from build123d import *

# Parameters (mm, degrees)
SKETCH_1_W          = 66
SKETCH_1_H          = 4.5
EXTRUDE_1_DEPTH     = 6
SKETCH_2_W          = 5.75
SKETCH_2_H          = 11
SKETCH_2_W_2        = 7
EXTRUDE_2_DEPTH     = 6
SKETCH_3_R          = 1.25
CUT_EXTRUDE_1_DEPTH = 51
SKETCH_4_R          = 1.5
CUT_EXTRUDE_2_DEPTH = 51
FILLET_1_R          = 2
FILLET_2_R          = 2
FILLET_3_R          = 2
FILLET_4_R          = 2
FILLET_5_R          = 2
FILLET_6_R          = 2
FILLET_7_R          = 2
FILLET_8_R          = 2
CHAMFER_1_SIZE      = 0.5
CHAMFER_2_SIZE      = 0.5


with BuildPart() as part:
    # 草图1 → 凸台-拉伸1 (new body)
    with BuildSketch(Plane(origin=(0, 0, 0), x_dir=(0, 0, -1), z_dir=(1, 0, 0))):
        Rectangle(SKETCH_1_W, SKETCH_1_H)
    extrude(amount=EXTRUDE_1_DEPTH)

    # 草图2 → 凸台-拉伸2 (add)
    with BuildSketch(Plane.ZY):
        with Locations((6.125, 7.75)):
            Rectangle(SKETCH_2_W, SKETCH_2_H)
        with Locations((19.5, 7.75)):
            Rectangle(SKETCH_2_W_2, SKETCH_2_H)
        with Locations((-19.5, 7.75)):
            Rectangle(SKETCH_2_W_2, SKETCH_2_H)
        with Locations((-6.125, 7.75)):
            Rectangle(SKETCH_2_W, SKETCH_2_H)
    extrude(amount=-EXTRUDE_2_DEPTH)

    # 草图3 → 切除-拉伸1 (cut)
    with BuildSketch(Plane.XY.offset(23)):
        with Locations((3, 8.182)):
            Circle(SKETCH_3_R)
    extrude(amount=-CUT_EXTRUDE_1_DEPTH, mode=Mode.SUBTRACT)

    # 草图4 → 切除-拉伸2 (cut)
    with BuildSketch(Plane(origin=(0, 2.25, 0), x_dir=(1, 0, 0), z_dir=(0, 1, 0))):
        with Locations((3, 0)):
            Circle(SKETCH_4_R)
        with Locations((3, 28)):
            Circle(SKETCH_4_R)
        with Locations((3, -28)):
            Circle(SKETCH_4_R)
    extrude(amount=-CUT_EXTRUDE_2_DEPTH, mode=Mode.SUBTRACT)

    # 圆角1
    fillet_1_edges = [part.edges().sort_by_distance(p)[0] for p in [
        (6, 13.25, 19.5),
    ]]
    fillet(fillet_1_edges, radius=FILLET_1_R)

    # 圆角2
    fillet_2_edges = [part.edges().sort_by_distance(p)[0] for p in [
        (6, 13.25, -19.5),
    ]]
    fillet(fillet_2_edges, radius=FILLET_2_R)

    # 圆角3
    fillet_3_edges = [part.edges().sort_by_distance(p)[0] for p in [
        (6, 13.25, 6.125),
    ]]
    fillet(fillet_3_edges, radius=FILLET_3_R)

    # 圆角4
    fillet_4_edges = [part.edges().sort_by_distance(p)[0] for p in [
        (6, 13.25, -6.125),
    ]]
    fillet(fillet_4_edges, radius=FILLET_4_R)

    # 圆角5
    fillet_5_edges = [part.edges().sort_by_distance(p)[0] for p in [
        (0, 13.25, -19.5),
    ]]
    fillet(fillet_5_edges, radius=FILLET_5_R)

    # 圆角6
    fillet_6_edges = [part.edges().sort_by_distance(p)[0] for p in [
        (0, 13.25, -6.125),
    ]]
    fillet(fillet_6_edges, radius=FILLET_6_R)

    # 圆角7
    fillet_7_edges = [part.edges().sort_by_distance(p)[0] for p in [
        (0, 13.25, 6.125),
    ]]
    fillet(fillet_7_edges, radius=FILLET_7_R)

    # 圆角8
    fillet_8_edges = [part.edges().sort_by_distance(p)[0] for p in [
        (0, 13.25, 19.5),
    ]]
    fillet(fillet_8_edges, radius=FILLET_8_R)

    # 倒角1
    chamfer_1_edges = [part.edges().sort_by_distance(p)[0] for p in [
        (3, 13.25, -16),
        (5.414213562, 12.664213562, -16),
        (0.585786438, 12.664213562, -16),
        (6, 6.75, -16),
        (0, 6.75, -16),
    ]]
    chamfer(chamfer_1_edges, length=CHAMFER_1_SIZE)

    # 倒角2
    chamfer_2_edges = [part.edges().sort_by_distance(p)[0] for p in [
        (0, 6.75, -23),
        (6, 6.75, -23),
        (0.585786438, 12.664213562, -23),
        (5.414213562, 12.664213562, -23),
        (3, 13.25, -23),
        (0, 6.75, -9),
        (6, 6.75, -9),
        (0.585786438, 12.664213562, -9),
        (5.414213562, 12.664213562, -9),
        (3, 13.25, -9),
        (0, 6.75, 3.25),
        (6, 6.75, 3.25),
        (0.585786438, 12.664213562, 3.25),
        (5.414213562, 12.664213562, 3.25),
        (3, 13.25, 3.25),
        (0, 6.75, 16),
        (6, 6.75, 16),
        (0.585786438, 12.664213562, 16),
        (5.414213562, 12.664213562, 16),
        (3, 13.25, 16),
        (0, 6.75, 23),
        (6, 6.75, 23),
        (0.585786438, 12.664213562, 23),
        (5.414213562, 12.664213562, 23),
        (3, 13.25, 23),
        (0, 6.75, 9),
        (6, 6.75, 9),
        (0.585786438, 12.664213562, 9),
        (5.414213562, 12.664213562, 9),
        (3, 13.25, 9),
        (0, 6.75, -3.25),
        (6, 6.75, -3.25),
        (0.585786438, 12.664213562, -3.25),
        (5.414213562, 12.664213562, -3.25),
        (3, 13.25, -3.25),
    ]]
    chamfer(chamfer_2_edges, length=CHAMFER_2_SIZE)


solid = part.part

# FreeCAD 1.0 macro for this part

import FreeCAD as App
import Part
import Sketcher

V = App.Vector


def edges_at(feature, points):
    """Names of the edges that pass closest to the given points."""
    edges = feature.Shape.Edges
    near = lambda p: min(range(len(edges)), key=lambda i: edges[i].distToShape(Part.Vertex(*p))[0])
    return sorted({f"Edge{near(p) + 1}" for p in points})


def add_polygon(sketch, points):
    """Adds a closed chain of lines whose ends are joined by coincident constraints."""
    first, n = sketch.GeometryCount, len(points)
    for a, b in zip(points, points[1:] + points[:1]):
        sketch.addGeometry(Part.LineSegment(App.Vector(*a, 0), App.Vector(*b, 0)), False)
    for i in range(n):
        sketch.addConstraint(Sketcher.Constraint("Coincident", first + i, 2, first + (i + 1) % n, 1))

doc = App.newDocument("Part")
body = doc.addObject("PartDesign::Body", "Body")

# Sketch on YZ plane
sketch1 = body.newObject("Sketcher::SketchObject", "Sketch")
sketch1.AttachmentSupport = (doc.getObject("YZ_Plane"), [""])
sketch1.MapMode = "FlatFace"
add_polygon(sketch1, [(2.2, 33), (-2.2, 33), (-2.2, -33), (2.2, -33)])  # lines 0-3
sketch1.addConstraint(Sketcher.Constraint("Horizontal", 0))
sketch1.addConstraint(Sketcher.Constraint("Vertical", 1))
sketch1.addConstraint(Sketcher.Constraint("Horizontal", 2))
sketch1.addConstraint(Sketcher.Constraint("Vertical", 3))
sketch1.addConstraint(Sketcher.Constraint("Symmetric", 0, 2, 2, 2, -1, 1))
sketch1.addConstraint(Sketcher.Constraint("DistanceY", 1, 2, 1, 1, 66.0))
sketch1.addConstraint(Sketcher.Constraint("DistanceX", 0, 2, 0, 1, 4.5))
pad1 = body.newObject("PartDesign::Pad", "Pad")
pad1.Profile = sketch1
pad1.Length = 6

# Sketch on YZ plane
sketch2 = body.newObject("Sketcher::SketchObject", "Sketch001")
sketch2.AttachmentSupport = (doc.getObject("YZ_Plane"), [""])
sketch2.MapMode = "FlatFace"
add_polygon(sketch2, [(13, 3), (2, 3), (2, 9), (13, 9)])  # lines 0-3
add_polygon(sketch2, [(13, 16), (2, 16), (2, 23), (13, 23)])  # lines 4-7
add_polygon(sketch2, [(13, -23), (2, -23), (2, -16), (13, -16)])  # lines 8-11
add_polygon(sketch2, [(13, -9), (2, -9), (2, -3), (13, -3)])  # lines 12-15
sketch2.addConstraint(Sketcher.Constraint("Horizontal", 0))
sketch2.addConstraint(Sketcher.Constraint("Vertical", 1))
sketch2.addConstraint(Sketcher.Constraint("Horizontal", 2))
sketch2.addConstraint(Sketcher.Constraint("Vertical", 3))
sketch2.addConstraint(Sketcher.Constraint("Horizontal", 4))
sketch2.addConstraint(Sketcher.Constraint("Vertical", 5))
sketch2.addConstraint(Sketcher.Constraint("Horizontal", 6))
sketch2.addConstraint(Sketcher.Constraint("Vertical", 7))
sketch2.addConstraint(Sketcher.Constraint("Horizontal", 8))
sketch2.addConstraint(Sketcher.Constraint("Vertical", 9))
sketch2.addConstraint(Sketcher.Constraint("Horizontal", 10))
sketch2.addConstraint(Sketcher.Constraint("Vertical", 11))
sketch2.addConstraint(Sketcher.Constraint("Horizontal", 12))
sketch2.addConstraint(Sketcher.Constraint("Vertical", 13))
sketch2.addConstraint(Sketcher.Constraint("Horizontal", 14))
sketch2.addConstraint(Sketcher.Constraint("Vertical", 15))
sketch2.addConstraint(Sketcher.Constraint("Symmetric", 5, 2, 8, 2, -1))
sketch2.addConstraint(Sketcher.Constraint("Symmetric", 7, 2, 10, 2, -1))
sketch2.addConstraint(Sketcher.Constraint("Symmetric", 1, 2, 12, 2, -1))
sketch2.addConstraint(Sketcher.Constraint("Symmetric", 3, 2, 14, 2, -1))
sketch2.addConstraint(Sketcher.Constraint("Vertical", 1, 2, 4, 2))
sketch2.addConstraint(Sketcher.Constraint("Vertical", 3, 2, 6, 2))
sketch2.addConstraint(Sketcher.Constraint("DistanceX", 0, 2, 0, 1, 11.0))
sketch2.addConstraint(Sketcher.Constraint("DistanceY", 5, 1, 5, 2, 7.0))
sketch2.addConstraint(Sketcher.Constraint("DistanceY", -1, 1, 1, 2, 9.0))
sketch2.addConstraint(Sketcher.Constraint("DistanceY", -1, 1, 4, 2, 16.0))
sketch2.addConstraint(Sketcher.Constraint("DistanceY", 1, 1, 1, 2, 5.75))
sketch2.addConstraint(Sketcher.Constraint("DistanceX", -1, 1, 0, 2, 2.25))
pad2 = body.newObject("PartDesign::Pad", "Pad001")
pad2.Profile = sketch2
pad2.Length = 6

# Sketch on XY plane
sketch3 = body.newObject("Sketcher::SketchObject", "Sketch002")
sketch3.AttachmentSupport = (doc.getObject("XY_Plane"), [""])
sketch3.MapMode = "FlatFace"
sketch3.AttachmentOffset = App.Placement(V(0, 0, 23), App.Rotation())
sketch3.addGeometry(Part.Circle(V(3, 8.2, 0), V(0, 0, 1), 1.2), False)
sketch3.addConstraint(Sketcher.Constraint("Diameter", 0, 2.5))
sketch3.addConstraint(Sketcher.Constraint("DistanceX", -1, 1, 0, 3, 3.0))
sketch3.addConstraint(Sketcher.Constraint("DistanceY", -1, 1, 0, 3, 8.182))
pocket1 = body.newObject("PartDesign::Pocket", "Pocket")
pocket1.Profile = sketch3
pocket1.Length = 51

# Sketch on XZ plane
sketch4 = body.newObject("Sketcher::SketchObject", "Sketch003")
sketch4.AttachmentSupport = (doc.getObject("XZ_Plane"), [""])
sketch4.MapMode = "FlatFace"
sketch4.AttachmentOffset = App.Placement(V(0, 0, -2.25), App.Rotation())
sketch4.addGeometry(Part.Circle(V(3, 0, 0), V(0, 0, 1), 1.5), False)
sketch4.addGeometry(Part.Circle(V(3, -28, 0), V(0, 0, 1), 1.5), False)
sketch4.addGeometry(Part.Circle(V(3, 28, 0), V(0, 0, 1), 1.5), False)
sketch4.addConstraint(Sketcher.Constraint("Equal", 0, 1))
sketch4.addConstraint(Sketcher.Constraint("Equal", 1, 2))
sketch4.addConstraint(Sketcher.Constraint("Symmetric", 1, 3, 2, 3, -1))
sketch4.addConstraint(Sketcher.Constraint("PointOnObject", 0, 3, -1))
sketch4.addConstraint(Sketcher.Constraint("Vertical", 0, 3, 1, 3))
sketch4.addConstraint(Sketcher.Constraint("Diameter", 0, 3.0))
sketch4.addConstraint(Sketcher.Constraint("DistanceX", -1, 1, 0, 3, 3.0))
sketch4.addConstraint(Sketcher.Constraint("DistanceY", 1, 3, -1, 1, 28.0))
pocket2 = body.newObject("PartDesign::Pocket", "Pocket001")
pocket2.Profile = sketch4
pocket2.Length = 51
pocket2.Reversed = True
doc.recompute()

fillet = body.newObject("PartDesign::Fillet", "Fillet")
fillet.Base = (pocket2, edges_at(pocket2, [(6, 13.25, 19.5)]))
fillet.Radius = 2
doc.recompute()

fillet2 = body.newObject("PartDesign::Fillet", "Fillet001")
fillet2.Base = (fillet, edges_at(fillet, [(6, 13.25, -19.5)]))
fillet2.Radius = 2
doc.recompute()

fillet3 = body.newObject("PartDesign::Fillet", "Fillet002")
fillet3.Base = (fillet2, edges_at(fillet2, [(6, 13.25, 6.125)]))
fillet3.Radius = 2
doc.recompute()

fillet4 = body.newObject("PartDesign::Fillet", "Fillet003")
fillet4.Base = (fillet3, edges_at(fillet3, [(6, 13.25, -6.125)]))
fillet4.Radius = 2
doc.recompute()

fillet5 = body.newObject("PartDesign::Fillet", "Fillet004")
fillet5.Base = (fillet4, edges_at(fillet4, [(0, 13.25, -19.5)]))
fillet5.Radius = 2
doc.recompute()

fillet6 = body.newObject("PartDesign::Fillet", "Fillet005")
fillet6.Base = (fillet5, edges_at(fillet5, [(0, 13.25, -6.125)]))
fillet6.Radius = 2
doc.recompute()

fillet7 = body.newObject("PartDesign::Fillet", "Fillet006")
fillet7.Base = (fillet6, edges_at(fillet6, [(0, 13.25, 6.125)]))
fillet7.Radius = 2
doc.recompute()

fillet8 = body.newObject("PartDesign::Fillet", "Fillet007")
fillet8.Base = (fillet7, edges_at(fillet7, [(0, 13.25, 19.5)]))
fillet8.Radius = 2
doc.recompute()

chamfer = body.newObject("PartDesign::Chamfer", "Chamfer")
chamfer.Base = (fillet8, edges_at(fillet8, [
    (3, 13.25, -16),
    (5.414, 12.664, -16),
    (0.586, 12.664, -16),
    (6, 6.75, -16),
    (0, 6.75, -16),
]))
chamfer.Size = 0.5
doc.recompute()

chamfer2 = body.newObject("PartDesign::Chamfer", "Chamfer001")
chamfer2.Base = (chamfer, edges_at(chamfer, [
    (0, 6.75, -23),
    (6, 6.75, -23),
    (0.586, 12.664, -23),
    (5.414, 12.664, -23),
    (3, 13.25, -23),
    (0, 6.75, -9),
    (6, 6.75, -9),
    (0.586, 12.664, -9),
    (5.414, 12.664, -9),
    (3, 13.25, -9),
    (0, 6.75, 3.25),
    (6, 6.75, 3.25),
    (0.586, 12.664, 3.25),
    (5.414, 12.664, 3.25),
    (3, 13.25, 3.25),
    (0, 6.75, 16),
    (6, 6.75, 16),
    (0.586, 12.664, 16),
    (5.414, 12.664, 16),
    (3, 13.25, 16),
    (0, 6.75, 23),
    (6, 6.75, 23),
    (0.586, 12.664, 23),
    (5.414, 12.664, 23),
    (3, 13.25, 23),
    (0, 6.75, 9),
    (6, 6.75, 9),
    (0.586, 12.664, 9),
    (5.414, 12.664, 9),
    (3, 13.25, 9),
    (0, 6.75, -3.25),
    (6, 6.75, -3.25),
    (0.586, 12.664, -3.25),
    (5.414, 12.664, -3.25),
    (3, 13.25, -3.25),
]))
chamfer2.Size = 0.5

doc.recompute()
